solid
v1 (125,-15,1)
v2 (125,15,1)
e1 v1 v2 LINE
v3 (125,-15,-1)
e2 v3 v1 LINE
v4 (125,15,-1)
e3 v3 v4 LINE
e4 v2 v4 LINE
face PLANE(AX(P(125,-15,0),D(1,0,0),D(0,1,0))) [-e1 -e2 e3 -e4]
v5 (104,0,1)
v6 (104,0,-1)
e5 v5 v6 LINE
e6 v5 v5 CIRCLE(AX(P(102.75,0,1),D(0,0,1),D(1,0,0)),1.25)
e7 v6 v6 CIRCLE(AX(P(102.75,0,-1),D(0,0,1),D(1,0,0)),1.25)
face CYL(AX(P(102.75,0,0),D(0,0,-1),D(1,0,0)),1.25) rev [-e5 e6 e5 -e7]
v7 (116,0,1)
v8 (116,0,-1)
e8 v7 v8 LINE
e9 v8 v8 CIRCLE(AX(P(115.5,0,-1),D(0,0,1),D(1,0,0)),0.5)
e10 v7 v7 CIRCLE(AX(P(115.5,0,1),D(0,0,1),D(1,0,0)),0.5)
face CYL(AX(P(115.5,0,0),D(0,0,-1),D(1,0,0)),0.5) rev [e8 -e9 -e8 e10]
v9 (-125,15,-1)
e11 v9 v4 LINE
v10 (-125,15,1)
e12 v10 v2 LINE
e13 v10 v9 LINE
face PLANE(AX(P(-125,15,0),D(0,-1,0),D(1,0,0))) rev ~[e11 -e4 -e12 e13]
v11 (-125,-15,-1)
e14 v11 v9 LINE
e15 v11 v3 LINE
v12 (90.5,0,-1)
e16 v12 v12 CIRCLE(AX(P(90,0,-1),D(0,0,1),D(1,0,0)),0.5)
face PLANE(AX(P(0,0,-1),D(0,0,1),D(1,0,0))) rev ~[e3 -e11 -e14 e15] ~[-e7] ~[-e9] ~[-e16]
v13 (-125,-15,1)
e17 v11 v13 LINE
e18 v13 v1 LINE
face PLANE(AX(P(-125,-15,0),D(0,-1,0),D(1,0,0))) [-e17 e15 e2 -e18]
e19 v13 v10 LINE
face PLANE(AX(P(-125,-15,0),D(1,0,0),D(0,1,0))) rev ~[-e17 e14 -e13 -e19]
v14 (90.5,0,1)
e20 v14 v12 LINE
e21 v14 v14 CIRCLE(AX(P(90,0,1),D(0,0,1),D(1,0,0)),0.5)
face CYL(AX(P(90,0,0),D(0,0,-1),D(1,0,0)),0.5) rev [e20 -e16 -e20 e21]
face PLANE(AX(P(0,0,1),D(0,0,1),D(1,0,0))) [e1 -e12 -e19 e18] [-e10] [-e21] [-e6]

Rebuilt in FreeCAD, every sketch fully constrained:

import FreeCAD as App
import Part
import Sketcher
Q = App.Units.Quantity


def add_polygon(sketch, points):
    """Adds a closed chain of lines whose ends are joined by coincident constraints."""
    first, n = sketch.GeometryCount, len(points)
    for a, b in zip(points, points[1:] + points[:1]):
        sketch.addGeometry(Part.LineSegment(App.Vector(*a, 0), App.Vector(*b, 0)), False)
    for i in range(n):
        sketch.addConstraint(Sketcher.Constraint("Coincident", first + i, 2, first + (i + 1) % n, 1))

doc = App.newDocument("Part")
body = doc.addObject("PartDesign::Body", "Body")

# Sketch on XY plane
sketch1 = body.newObject("Sketcher::SketchObject", "Sketch")
sketch1.AttachmentSupport = (doc.getObject("XY_Plane"), [""])
sketch1.MapMode = "FlatFace"
add_polygon(sketch1, [(-125, 15), (-125, -15), (125, -15), (125, 15)])  # lines 0-3
sketch1.addGeometry(Part.Circle(App.Vector(90, 0, 0), App.Vector(0, 0, 1), 0.5), False)  # 4
sketch1.addGeometry(Part.Circle(App.Vector(102.75, 0, 0), App.Vector(0, 0, 1), 1.25), False)  # 5
sketch1.addGeometry(Part.Circle(App.Vector(115.5, 0, 0), App.Vector(0, 0, 1), 0.5), False)  # 6
sketch1.addConstraint(Sketcher.Constraint("Vertical", 0))
sketch1.addConstraint(Sketcher.Constraint("Horizontal", 1))
sketch1.addConstraint(Sketcher.Constraint("Vertical", 2))
sketch1.addConstraint(Sketcher.Constraint("Horizontal", 3))
sketch1.addConstraint(Sketcher.Constraint("Equal", 4, 6))
sketch1.addConstraint(Sketcher.Constraint("Symmetric", 0, 2, 2, 2, -1, 1))
sketch1.addConstraint(Sketcher.Constraint("PointOnObject", 4, 3, -1))
sketch1.addConstraint(Sketcher.Constraint("PointOnObject", 5, 3, -1))
sketch1.addConstraint(Sketcher.Constraint("PointOnObject", 6, 3, -1))
sketch1.addConstraint(Sketcher.Constraint("Diameter", 4, Q("1 mm")))
sketch1.addConstraint(Sketcher.Constraint("Diameter", 5, Q("2.5 mm")))
sketch1.addConstraint(Sketcher.Constraint("DistanceX", 1, 1, 1, 2, Q("250 mm")))
sketch1.addConstraint(Sketcher.Constraint("DistanceY", 0, 2, 0, 1, Q("30 mm")))
sketch1.addConstraint(Sketcher.Constraint("DistanceX", -1, 1, 4, 3, Q("90 mm")))
sketch1.addConstraint(Sketcher.Constraint("DistanceX", -1, 1, 6, 3, Q("115.5 mm")))
sketch1.addConstraint(Sketcher.Constraint("DistanceX", -1, 1, 5, 3, Q("102.75 mm")))
pad1 = body.newObject("PartDesign::Pad", "Pad")
pad1.Profile = sketch1
pad1.Length = 2
pad1.Midplane = True

doc.recompute()
